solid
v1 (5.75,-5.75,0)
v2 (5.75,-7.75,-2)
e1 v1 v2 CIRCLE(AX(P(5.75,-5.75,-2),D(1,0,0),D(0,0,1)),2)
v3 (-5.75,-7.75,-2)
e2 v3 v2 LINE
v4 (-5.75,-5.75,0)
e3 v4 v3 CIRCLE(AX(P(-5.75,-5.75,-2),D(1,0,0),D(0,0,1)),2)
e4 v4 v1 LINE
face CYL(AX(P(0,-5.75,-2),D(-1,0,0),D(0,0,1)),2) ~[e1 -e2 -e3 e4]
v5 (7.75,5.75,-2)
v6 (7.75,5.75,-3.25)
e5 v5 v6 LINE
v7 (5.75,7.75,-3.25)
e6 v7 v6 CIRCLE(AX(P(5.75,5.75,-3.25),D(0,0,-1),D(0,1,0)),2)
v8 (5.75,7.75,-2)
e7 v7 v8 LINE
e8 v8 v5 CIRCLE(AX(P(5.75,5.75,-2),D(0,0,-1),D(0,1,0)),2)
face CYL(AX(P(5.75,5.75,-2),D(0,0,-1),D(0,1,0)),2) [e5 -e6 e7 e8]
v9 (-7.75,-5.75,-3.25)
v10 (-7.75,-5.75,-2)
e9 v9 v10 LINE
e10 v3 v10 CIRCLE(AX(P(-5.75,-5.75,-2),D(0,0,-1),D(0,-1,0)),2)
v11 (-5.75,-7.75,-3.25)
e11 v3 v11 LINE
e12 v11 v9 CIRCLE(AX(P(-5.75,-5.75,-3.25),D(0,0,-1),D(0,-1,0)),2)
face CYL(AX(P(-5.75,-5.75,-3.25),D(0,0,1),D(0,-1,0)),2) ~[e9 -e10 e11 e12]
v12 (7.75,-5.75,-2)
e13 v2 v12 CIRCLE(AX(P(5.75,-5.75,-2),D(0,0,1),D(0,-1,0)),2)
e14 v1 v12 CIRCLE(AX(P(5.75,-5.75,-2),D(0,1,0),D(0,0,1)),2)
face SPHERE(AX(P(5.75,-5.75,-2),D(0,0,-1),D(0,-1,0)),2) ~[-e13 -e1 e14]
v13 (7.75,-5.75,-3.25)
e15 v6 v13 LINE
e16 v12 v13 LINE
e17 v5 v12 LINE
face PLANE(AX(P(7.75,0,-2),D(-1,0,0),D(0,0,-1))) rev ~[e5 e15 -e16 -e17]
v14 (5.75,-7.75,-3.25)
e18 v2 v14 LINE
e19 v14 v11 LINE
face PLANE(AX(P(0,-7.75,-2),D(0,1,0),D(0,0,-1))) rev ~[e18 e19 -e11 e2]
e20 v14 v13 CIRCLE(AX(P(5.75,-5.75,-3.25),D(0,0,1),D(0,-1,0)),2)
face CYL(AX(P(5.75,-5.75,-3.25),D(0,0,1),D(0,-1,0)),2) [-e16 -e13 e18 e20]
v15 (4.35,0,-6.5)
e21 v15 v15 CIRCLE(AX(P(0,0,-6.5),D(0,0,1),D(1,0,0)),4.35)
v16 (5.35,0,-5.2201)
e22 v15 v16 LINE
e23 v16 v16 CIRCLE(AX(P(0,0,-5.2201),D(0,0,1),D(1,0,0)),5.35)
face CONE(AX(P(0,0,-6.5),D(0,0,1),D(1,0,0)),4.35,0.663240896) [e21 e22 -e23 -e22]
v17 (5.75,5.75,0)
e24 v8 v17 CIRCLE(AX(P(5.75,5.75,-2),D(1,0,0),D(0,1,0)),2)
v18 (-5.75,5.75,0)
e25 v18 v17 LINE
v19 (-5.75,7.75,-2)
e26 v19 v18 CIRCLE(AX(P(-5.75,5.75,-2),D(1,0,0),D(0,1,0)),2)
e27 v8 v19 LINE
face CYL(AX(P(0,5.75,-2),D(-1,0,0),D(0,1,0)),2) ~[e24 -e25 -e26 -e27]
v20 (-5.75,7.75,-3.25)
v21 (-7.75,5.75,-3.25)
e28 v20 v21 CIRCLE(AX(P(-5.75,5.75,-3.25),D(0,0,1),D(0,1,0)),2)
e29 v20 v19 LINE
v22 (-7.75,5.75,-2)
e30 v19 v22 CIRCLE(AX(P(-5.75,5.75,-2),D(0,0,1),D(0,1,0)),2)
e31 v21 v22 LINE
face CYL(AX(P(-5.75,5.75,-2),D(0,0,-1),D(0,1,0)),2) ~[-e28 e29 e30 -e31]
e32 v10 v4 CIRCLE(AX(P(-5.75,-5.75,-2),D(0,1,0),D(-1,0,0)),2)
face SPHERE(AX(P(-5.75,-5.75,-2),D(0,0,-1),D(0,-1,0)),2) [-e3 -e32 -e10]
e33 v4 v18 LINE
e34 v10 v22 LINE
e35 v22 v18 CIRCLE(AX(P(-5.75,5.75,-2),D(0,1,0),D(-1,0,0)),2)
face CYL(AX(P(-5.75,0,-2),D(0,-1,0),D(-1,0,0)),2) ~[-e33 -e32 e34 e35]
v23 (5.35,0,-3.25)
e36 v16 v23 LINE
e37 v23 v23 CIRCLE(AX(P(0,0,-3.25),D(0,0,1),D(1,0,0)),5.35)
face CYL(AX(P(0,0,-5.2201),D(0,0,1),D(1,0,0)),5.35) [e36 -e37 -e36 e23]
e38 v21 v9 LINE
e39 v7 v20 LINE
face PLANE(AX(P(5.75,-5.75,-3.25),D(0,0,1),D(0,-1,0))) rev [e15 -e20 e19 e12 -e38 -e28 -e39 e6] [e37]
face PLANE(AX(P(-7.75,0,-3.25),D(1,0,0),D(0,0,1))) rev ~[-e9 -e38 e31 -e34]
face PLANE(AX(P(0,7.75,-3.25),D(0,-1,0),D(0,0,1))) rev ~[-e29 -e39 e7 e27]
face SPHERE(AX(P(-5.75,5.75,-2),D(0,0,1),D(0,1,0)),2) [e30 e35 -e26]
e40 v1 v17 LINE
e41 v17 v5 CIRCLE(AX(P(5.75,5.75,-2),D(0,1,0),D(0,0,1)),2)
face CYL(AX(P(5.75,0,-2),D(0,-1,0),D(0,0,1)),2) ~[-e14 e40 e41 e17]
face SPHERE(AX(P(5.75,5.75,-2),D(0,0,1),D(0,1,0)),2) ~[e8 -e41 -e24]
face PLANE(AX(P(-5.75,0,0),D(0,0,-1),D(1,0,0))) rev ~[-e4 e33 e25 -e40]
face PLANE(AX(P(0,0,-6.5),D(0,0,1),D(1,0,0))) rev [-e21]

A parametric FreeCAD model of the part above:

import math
import FreeCAD as App
import Part
import Sketcher
from FreeCAD import Vector
Q = App.Units.Quantity

doc = App.newDocument("Part")
body = doc.addObject("PartDesign::Body", "Body")

sketch1 = body.newObject("Sketcher::SketchObject", "Sketch")
sketch1.AttachmentSupport = (doc.getObject("XZ_Plane"), [""])
sketch1.MapMode = "FlatFace"
sketch1.addGeometry([
    Part.LineSegment(Vector(-7.8, -3.2, 0), Vector(-7.8, -2, 0)),
    Part.ArcOfCircle(Part.Circle(Vector(-5.8, -2, 0), Vector(0, 0, 1), 2), math.radians(90), math.radians(180)),
    Part.LineSegment(Vector(-5.8, 0, 0), Vector(5.8, 0, 0)),
    Part.ArcOfCircle(Part.Circle(Vector(5.8, -2, 0), Vector(0, 0, 1), 2), math.radians(0), math.radians(90)),
    Part.LineSegment(Vector(7.8, -2, 0), Vector(7.8, -3.2, 0)),
    Part.LineSegment(Vector(7.8, -3.2, 0), Vector(-7.8, -3.2, 0)),
], False)
sketch1.addConstraint([
    Sketcher.Constraint("Tangent", 0, 2, 1, 2),
    Sketcher.Constraint("Tangent", 1, 1, 2, 1),
    Sketcher.Constraint("Tangent", 2, 2, 3, 2),
    Sketcher.Constraint("Tangent", 3, 1, 4, 1),
    Sketcher.Constraint("Coincident", 4, 2, 5, 1),
    Sketcher.Constraint("Coincident", 5, 2, 0, 1),
    Sketcher.Constraint("Vertical", 0),
    Sketcher.Constraint("Horizontal", 2),
    Sketcher.Constraint("Vertical", 4),
    Sketcher.Constraint("Horizontal", 5),
    Sketcher.Constraint("Equal", 1, 3),
    Sketcher.Constraint("Symmetric", 1, 1, 2, 2, -1, 1),
    Sketcher.Constraint("Radius", 1, Q("2 mm")),
    Sketcher.Constraint("DistanceX", 2, 1, 2, 2, Q("11.5 mm")),
    Sketcher.Constraint("DistanceY", 0, 1, 0, 2, Q("1.25 mm")),
])
pad1 = body.newObject("PartDesign::Pad", "Pad")
pad1.Profile = sketch1
pad1.Length = 11.5
pad1.Midplane = True

sketch2 = body.newObject("Sketcher::SketchObject", "Sketch001")
sketch2.AttachmentSupport = (doc.getObject("YZ_Plane"), [""])
sketch2.MapMode = "FlatFace"
sketch2.addGeometry([
    Part.ArcOfCircle(Part.Circle(Vector(5.8, -2, 0), Vector(0, 0, 1), 2), math.radians(0), math.radians(90)),
    Part.LineSegment(Vector(5.8, 0, 0), Vector(-5.8, 0, 0)),
    Part.ArcOfCircle(Part.Circle(Vector(-5.8, -2, 0), Vector(0, 0, 1), 2), math.radians(90), math.radians(180)),
    Part.LineSegment(Vector(-7.8, -2, 0), Vector(-7.8, -3.2, 0)),
    Part.LineSegment(Vector(-7.8, -3.2, 0), Vector(7.8, -3.2, 0)),
    Part.LineSegment(Vector(7.8, -3.2, 0), Vector(7.8, -2, 0)),
], False)
sketch2.addConstraint([
    Sketcher.Constraint("Tangent", 0, 2, 1, 1),
    Sketcher.Constraint("Tangent", 1, 2, 2, 1),
    Sketcher.Constraint("Tangent", 2, 2, 3, 1),
    Sketcher.Constraint("Coincident", 3, 2, 4, 1),
    Sketcher.Constraint("Coincident", 4, 2, 5, 1),
    Sketcher.Constraint("Tangent", 5, 2, 0, 1),
    Sketcher.Constraint("Horizontal", 1),
    Sketcher.Constraint("Vertical", 3),
    Sketcher.Constraint("Horizontal", 4),
    Sketcher.Constraint("Vertical", 5),
    Sketcher.Constraint("Equal", 0, 2),
    Sketcher.Constraint("Symmetric", 0, 2, 1, 2, -1, 1),
    Sketcher.Constraint("Radius", 0, Q("2 mm")),
    Sketcher.Constraint("DistanceX", 1, 2, 1, 1, Q("11.5 mm")),
    Sketcher.Constraint("DistanceY", 3, 2, 3, 1, Q("1.25 mm")),
])
pad2 = body.newObject("PartDesign::Pad", "Pad001")
pad2.Profile = sketch2
pad2.Length = 11.5
pad2.Midplane = True

sketch3 = body.newObject("Sketcher::SketchObject", "Sketch002")
sketch3.AttachmentSupport = (doc.getObject("YZ_Plane"), [""])
sketch3.MapMode = "FlatFace"
sketch3.AttachmentOffset = App.Placement(Vector(0, 0, -5.75), App.Rotation())
sketch3.addGeometry([
    Part.LineSegment(Vector(5.8, 0, 0), Vector(5.8, -3.2, 0)),
    Part.LineSegment(Vector(5.8, -3.2, 0), Vector(7.8, -3.2, 0)),
    Part.LineSegment(Vector(7.8, -3.2, 0), Vector(7.8, -2, 0)),
    Part.ArcOfCircle(Part.Circle(Vector(5.8, -2, 0), Vector(0, 0, 1), 2), math.radians(0), math.radians(90)),
], False)
sketch3.addGeometry(Part.LineSegment(Vector(5.8, -3.2, 0), Vector(5.8, 0, 0)), True)
sketch3.addConstraint([
    Sketcher.Constraint("Coincident", 0, 2, 1, 1),
    Sketcher.Constraint("Coincident", 1, 2, 2, 1),
    Sketcher.Constraint("Tangent", 2, 2, 3, 1),
    Sketcher.Constraint("Coincident", 3, 2, 0, 1),
    Sketcher.Constraint("Vertical", 0),
    Sketcher.Constraint("Horizontal", 1),
    Sketcher.Constraint("Vertical", 2),
    Sketcher.Constraint("Vertical", 4),
    Sketcher.Constraint("Coincident", 4, 1, 0, 2),
    Sketcher.Constraint("PointOnObject", 3, 2, -1),
    Sketcher.Constraint("PointOnObject", 4, 2, -1),
    Sketcher.Constraint("Vertical", 3, 3, 0, 2),
    Sketcher.Constraint("Radius", 3, Q("2 mm")),
    Sketcher.Constraint("DistanceY", 0, 2, 0, 1, Q("3.25 mm")),
    Sketcher.Constraint("DistanceX", -1, 1, 3, 3, Q("5.75 mm")),
])
revolution = body.newObject("PartDesign::Revolution", "Revolution")
revolution.Profile = sketch3
revolution.ReferenceAxis = (sketch3, ["Axis0"])
revolution.Angle = 90

sketch4 = body.newObject("Sketcher::SketchObject", "Sketch003")
sketch4.AttachmentSupport = (doc.getObject("YZ_Plane"), [""])
sketch4.MapMode = "FlatFace"
sketch4.AttachmentOffset = App.Placement(Vector(0, 0, -5.75), App.Rotation())
sketch4.addGeometry([
    Part.LineSegment(Vector(-5.8, -3.2, 0), Vector(-5.8, 0, 0)),
    Part.ArcOfCircle(Part.Circle(Vector(-5.8, -2, 0), Vector(0, 0, 1), 2), math.radians(90), math.radians(180)),
    Part.LineSegment(Vector(-7.8, -2, 0), Vector(-7.8, -3.2, 0)),
    Part.LineSegment(Vector(-7.8, -3.2, 0), Vector(-5.8, -3.2, 0)),
], False)
sketch4.addGeometry(Part.LineSegment(Vector(-5.8, 0, 0), Vector(-5.8, -3.2, 0)), True)
sketch4.addConstraint([
    Sketcher.Constraint("Coincident", 0, 2, 1, 1),
    Sketcher.Constraint("Tangent", 1, 2, 2, 1),
    Sketcher.Constraint("Coincident", 2, 2, 3, 1),
    Sketcher.Constraint("Coincident", 3, 2, 0, 1),
    Sketcher.Constraint("Vertical", 0),
    Sketcher.Constraint("Vertical", 2),
    Sketcher.Constraint("Horizontal", 3),
    Sketcher.Constraint("Vertical", 4),
    Sketcher.Constraint("Coincident", 4, 1, 0, 2),
    Sketcher.Constraint("PointOnObject", 0, 2, -1),
    Sketcher.Constraint("Horizontal", 2, 2, 4, 2),
    Sketcher.Constraint("Vertical", 1, 3, 0, 2),
    Sketcher.Constraint("Radius", 1, Q("2 mm")),
    Sketcher.Constraint("DistanceY", 0, 1, 0, 2, Q("3.25 mm")),
    Sketcher.Constraint("DistanceX", 1, 3, -1, 1, Q("5.75 mm")),
])
revolution2 = body.newObject("PartDesign::Revolution", "Revolution001")
revolution2.Profile = sketch4
revolution2.ReferenceAxis = (sketch4, ["Axis0"])
revolution2.Angle = 90

sketch5 = body.newObject("Sketcher::SketchObject", "Sketch004")
sketch5.AttachmentSupport = (doc.getObject("YZ_Plane"), [""])
sketch5.MapMode = "FlatFace"
sketch5.AttachmentOffset = App.Placement(Vector(0, 0, 5.75), App.Rotation())
sketch5.addGeometry([
    Part.LineSegment(Vector(5.8, 0, 0), Vector(5.8, -3.2, 0)),
    Part.LineSegment(Vector(5.8, -3.2, 0), Vector(7.8, -3.2, 0)),
    Part.LineSegment(Vector(7.8, -3.2, 0), Vector(7.8, -2, 0)),
    Part.ArcOfCircle(Part.Circle(Vector(5.8, -2, 0), Vector(0, 0, 1), 2), math.radians(0), math.radians(90)),
], False)
sketch5.addGeometry(Part.LineSegment(Vector(5.8, 0, 0), Vector(5.8, -3.2, 0)), True)
sketch5.addConstraint([
    Sketcher.Constraint("Coincident", 0, 2, 1, 1),
    Sketcher.Constraint("Coincident", 1, 2, 2, 1),
    Sketcher.Constraint("Tangent", 2, 2, 3, 1),
    Sketcher.Constraint("Coincident", 3, 2, 0, 1),
    Sketcher.Constraint("Vertical", 0),
    Sketcher.Constraint("Horizontal", 1),
    Sketcher.Constraint("Vertical", 2),
    Sketcher.Constraint("Vertical", 4),
    Sketcher.Constraint("Coincident", 4, 1, 3, 2),
    Sketcher.Constraint("PointOnObject", 3, 2, -1),
    Sketcher.Constraint("Horizontal", 1, 2, 4, 2),
    Sketcher.Constraint("Vertical", 3, 3, 0, 2),
    Sketcher.Constraint("Radius", 3, Q("2 mm")),
    Sketcher.Constraint("DistanceY", 0, 2, 0, 1, Q("3.25 mm")),
    Sketcher.Constraint("DistanceX", -1, 1, 3, 3, Q("5.75 mm")),
])
revolution3 = body.newObject("PartDesign::Revolution", "Revolution002")
revolution3.Profile = sketch5
revolution3.ReferenceAxis = (sketch5, ["Axis0"])
revolution3.Angle = 90

sketch6 = body.newObject("Sketcher::SketchObject", "Sketch005")
sketch6.AttachmentSupport = (doc.getObject("YZ_Plane"), [""])
sketch6.MapMode = "FlatFace"
sketch6.AttachmentOffset = App.Placement(Vector(0, 0, 5.75), App.Rotation())
sketch6.addGeometry([
    Part.LineSegment(Vector(-5.8, -3.2, 0), Vector(-5.8, 0, 0)),
    Part.ArcOfCircle(Part.Circle(Vector(-5.8, -2, 0), Vector(0, 0, 1), 2), math.radians(90), math.radians(180)),
    Part.LineSegment(Vector(-7.8, -2, 0), Vector(-7.8, -3.2, 0)),
    Part.LineSegment(Vector(-7.8, -3.2, 0), Vector(-5.8, -3.2, 0)),
], False)
sketch6.addGeometry(Part.LineSegment(Vector(-5.8, -3.2, 0), Vector(-5.8, 0, 0)), True)
sketch6.addConstraint([
    Sketcher.Constraint("Coincident", 0, 2, 1, 1),
    Sketcher.Constraint("Tangent", 1, 2, 2, 1),
    Sketcher.Constraint("Coincident", 2, 2, 3, 1),
    Sketcher.Constraint("Coincident", 3, 2, 0, 1),
    Sketcher.Constraint("Vertical", 0),
    Sketcher.Constraint("Vertical", 2),
    Sketcher.Constraint("Horizontal", 3),
    Sketcher.Constraint("Vertical", 4),
    Sketcher.Constraint("Coincident", 4, 1, 3, 2),
    Sketcher.Constraint("PointOnObject", 0, 2, -1),
    Sketcher.Constraint("PointOnObject", 4, 2, -1),
    Sketcher.Constraint("Vertical", 1, 3, 0, 2),
    Sketcher.Constraint("Radius", 1, Q("2 mm")),
    Sketcher.Constraint("DistanceY", 0, 1, 0, 2, Q("3.25 mm")),
    Sketcher.Constraint("DistanceX", 1, 3, -1, 1, Q("5.75 mm")),
])
revolution4 = body.newObject("PartDesign::Revolution", "Revolution003")
revolution4.Profile = sketch6
revolution4.ReferenceAxis = (sketch6, ["Axis0"])
revolution4.Angle = 90

sketch7 = body.newObject("Sketcher::SketchObject", "Sketch006")
sketch7.AttachmentSupport = (doc.getObject("XZ_Plane"), [""])
sketch7.MapMode = "FlatFace"
sketch7.addGeometry([
    Part.LineSegment(Vector(0, -6.5, 0), Vector(0, 0, 0)),
    Part.LineSegment(Vector(0, 0, 0), Vector(5.3, 0, 0)),
    Part.LineSegment(Vector(5.3, 0, 0), Vector(5.3, -5.2, 0)),
    Part.LineSegment(Vector(5.3, -5.2, 0), Vector(4.3, -6.5, 0)),
    Part.LineSegment(Vector(4.3, -6.5, 0), Vector(0, -6.5, 0)),
], False)
sketch7.addConstraint([
    Sketcher.Constraint("Coincident", 0, 2, 1, 1),
    Sketcher.Constraint("Coincident", 1, 2, 2, 1),
    Sketcher.Constraint("Coincident", 2, 2, 3, 1),
    Sketcher.Constraint("Coincident", 3, 2, 4, 1),
    Sketcher.Constraint("Coincident", 4, 2, 0, 1),
    Sketcher.Constraint("Vertical", 0),
    Sketcher.Constraint("Horizontal", 1),
    Sketcher.Constraint("Vertical", 2),
    Sketcher.Constraint("Horizontal", 4),
    Sketcher.Constraint("Coincident", 0, 2, -1, 1),
    Sketcher.Constraint("Angle", 3, Q("-128.001 deg")),
    Sketcher.Constraint("DistanceY", 0, 1, 0, 2, Q("6.5 mm")),
    Sketcher.Constraint("DistanceX", 3, 2, 2, 2, Q("1 mm")),
    Sketcher.Constraint("DistanceX", 1, 1, 1, 2, Q("5.35 mm")),
])
revolution5 = body.newObject("PartDesign::Revolution", "Revolution004")
revolution5.Profile = sketch7
revolution5.ReferenceAxis = (sketch7, ["V_Axis"])
revolution5.Angle = 360

doc.recompute()
